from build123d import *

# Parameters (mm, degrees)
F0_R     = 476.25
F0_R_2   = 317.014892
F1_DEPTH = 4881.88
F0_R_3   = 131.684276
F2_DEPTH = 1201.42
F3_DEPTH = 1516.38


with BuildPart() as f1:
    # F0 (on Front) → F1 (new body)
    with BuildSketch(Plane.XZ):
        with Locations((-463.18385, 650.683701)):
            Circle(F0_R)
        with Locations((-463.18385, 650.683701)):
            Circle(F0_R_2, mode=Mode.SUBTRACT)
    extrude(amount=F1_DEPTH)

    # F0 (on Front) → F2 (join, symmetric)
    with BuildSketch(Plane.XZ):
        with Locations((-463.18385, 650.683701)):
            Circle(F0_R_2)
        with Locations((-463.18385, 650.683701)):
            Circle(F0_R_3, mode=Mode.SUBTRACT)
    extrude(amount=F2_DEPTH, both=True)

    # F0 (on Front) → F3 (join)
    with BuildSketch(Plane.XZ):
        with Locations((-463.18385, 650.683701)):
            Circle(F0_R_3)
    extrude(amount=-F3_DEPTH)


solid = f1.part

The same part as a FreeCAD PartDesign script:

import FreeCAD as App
import Part
import Sketcher

V = App.Vector
Q = App.Units.Quantity

doc = App.newDocument("Part")
body = doc.addObject("PartDesign::Body", "Body")

sketch1 = body.newObject("Sketcher::SketchObject", "Sketch")
sketch1.AttachmentSupport = (doc.getObject("XZ_Plane"), [""])
sketch1.MapMode = "FlatFace"
sketch1.addGeometry([
    Part.Circle(V(-463.18385, 650.683701, 0), V(0, 0, 1), 476.25),
    Part.Circle(V(-463.18385, 650.683701, 0), V(0, 0, 1), 317.014892),
], False)
sketch1.addConstraint([
    Sketcher.Constraint("Coincident", 1, 3, 0, 3),
    Sketcher.Constraint("Diameter", 0, Q("37.5 in")),
    Sketcher.Constraint("Diameter", 1, 634.029784),
    Sketcher.Constraint("DistanceY", -1, 1, 0, 3, 650.683701),
    Sketcher.Constraint("DistanceX", 0, 3, -1, 1, 463.18385),
])
pad1 = body.newObject("PartDesign::Pad", "Pad")
pad1.Profile = sketch1
pad1.Length = Q("192.2 in")

sketch2 = body.newObject("Sketcher::SketchObject", "Sketch001")
sketch2.AttachmentSupport = (doc.getObject("XZ_Plane"), [""])
sketch2.MapMode = "FlatFace"
sketch2.addGeometry([
    Part.Circle(V(-463.18385, 650.683701, 0), V(0, 0, 1), 317.014892),
    Part.Circle(V(-463.18385, 650.683701, 0), V(0, 0, 1), 131.684276),
], False)
sketch2.addConstraint([
    Sketcher.Constraint("Coincident", 1, 3, 0, 3),
    Sketcher.Constraint("Diameter", 1, 263.368552),
    Sketcher.Constraint("Diameter", 0, 634.029784),
    Sketcher.Constraint("DistanceY", -1, 1, 0, 3, 650.683701),
    Sketcher.Constraint("DistanceX", 0, 3, -1, 1, 463.18385),
])
pad2 = body.newObject("PartDesign::Pad", "Pad001")
pad2.Profile = sketch2
pad2.Length = Q("94.6 in")
pad2.Midplane = True

sketch3 = body.newObject("Sketcher::SketchObject", "Sketch002")
sketch3.AttachmentSupport = (doc.getObject("XZ_Plane"), [""])
sketch3.MapMode = "FlatFace"
sketch3.addGeometry(Part.Circle(V(-463.18385, 650.683701, 0), V(0, 0, 1), 131.684276), False)
sketch3.addConstraint([
    Sketcher.Constraint("Diameter", 0, 263.368552),
    Sketcher.Constraint("DistanceY", -1, 1, 0, 3, 650.683701),
    Sketcher.Constraint("DistanceX", 0, 3, -1, 1, 463.18385),
])
pad3 = body.newObject("PartDesign::Pad", "Pad002")
pad3.Profile = sketch3
pad3.Length = Q("59.7 in")
pad3.Reversed = True

doc.recompute()
